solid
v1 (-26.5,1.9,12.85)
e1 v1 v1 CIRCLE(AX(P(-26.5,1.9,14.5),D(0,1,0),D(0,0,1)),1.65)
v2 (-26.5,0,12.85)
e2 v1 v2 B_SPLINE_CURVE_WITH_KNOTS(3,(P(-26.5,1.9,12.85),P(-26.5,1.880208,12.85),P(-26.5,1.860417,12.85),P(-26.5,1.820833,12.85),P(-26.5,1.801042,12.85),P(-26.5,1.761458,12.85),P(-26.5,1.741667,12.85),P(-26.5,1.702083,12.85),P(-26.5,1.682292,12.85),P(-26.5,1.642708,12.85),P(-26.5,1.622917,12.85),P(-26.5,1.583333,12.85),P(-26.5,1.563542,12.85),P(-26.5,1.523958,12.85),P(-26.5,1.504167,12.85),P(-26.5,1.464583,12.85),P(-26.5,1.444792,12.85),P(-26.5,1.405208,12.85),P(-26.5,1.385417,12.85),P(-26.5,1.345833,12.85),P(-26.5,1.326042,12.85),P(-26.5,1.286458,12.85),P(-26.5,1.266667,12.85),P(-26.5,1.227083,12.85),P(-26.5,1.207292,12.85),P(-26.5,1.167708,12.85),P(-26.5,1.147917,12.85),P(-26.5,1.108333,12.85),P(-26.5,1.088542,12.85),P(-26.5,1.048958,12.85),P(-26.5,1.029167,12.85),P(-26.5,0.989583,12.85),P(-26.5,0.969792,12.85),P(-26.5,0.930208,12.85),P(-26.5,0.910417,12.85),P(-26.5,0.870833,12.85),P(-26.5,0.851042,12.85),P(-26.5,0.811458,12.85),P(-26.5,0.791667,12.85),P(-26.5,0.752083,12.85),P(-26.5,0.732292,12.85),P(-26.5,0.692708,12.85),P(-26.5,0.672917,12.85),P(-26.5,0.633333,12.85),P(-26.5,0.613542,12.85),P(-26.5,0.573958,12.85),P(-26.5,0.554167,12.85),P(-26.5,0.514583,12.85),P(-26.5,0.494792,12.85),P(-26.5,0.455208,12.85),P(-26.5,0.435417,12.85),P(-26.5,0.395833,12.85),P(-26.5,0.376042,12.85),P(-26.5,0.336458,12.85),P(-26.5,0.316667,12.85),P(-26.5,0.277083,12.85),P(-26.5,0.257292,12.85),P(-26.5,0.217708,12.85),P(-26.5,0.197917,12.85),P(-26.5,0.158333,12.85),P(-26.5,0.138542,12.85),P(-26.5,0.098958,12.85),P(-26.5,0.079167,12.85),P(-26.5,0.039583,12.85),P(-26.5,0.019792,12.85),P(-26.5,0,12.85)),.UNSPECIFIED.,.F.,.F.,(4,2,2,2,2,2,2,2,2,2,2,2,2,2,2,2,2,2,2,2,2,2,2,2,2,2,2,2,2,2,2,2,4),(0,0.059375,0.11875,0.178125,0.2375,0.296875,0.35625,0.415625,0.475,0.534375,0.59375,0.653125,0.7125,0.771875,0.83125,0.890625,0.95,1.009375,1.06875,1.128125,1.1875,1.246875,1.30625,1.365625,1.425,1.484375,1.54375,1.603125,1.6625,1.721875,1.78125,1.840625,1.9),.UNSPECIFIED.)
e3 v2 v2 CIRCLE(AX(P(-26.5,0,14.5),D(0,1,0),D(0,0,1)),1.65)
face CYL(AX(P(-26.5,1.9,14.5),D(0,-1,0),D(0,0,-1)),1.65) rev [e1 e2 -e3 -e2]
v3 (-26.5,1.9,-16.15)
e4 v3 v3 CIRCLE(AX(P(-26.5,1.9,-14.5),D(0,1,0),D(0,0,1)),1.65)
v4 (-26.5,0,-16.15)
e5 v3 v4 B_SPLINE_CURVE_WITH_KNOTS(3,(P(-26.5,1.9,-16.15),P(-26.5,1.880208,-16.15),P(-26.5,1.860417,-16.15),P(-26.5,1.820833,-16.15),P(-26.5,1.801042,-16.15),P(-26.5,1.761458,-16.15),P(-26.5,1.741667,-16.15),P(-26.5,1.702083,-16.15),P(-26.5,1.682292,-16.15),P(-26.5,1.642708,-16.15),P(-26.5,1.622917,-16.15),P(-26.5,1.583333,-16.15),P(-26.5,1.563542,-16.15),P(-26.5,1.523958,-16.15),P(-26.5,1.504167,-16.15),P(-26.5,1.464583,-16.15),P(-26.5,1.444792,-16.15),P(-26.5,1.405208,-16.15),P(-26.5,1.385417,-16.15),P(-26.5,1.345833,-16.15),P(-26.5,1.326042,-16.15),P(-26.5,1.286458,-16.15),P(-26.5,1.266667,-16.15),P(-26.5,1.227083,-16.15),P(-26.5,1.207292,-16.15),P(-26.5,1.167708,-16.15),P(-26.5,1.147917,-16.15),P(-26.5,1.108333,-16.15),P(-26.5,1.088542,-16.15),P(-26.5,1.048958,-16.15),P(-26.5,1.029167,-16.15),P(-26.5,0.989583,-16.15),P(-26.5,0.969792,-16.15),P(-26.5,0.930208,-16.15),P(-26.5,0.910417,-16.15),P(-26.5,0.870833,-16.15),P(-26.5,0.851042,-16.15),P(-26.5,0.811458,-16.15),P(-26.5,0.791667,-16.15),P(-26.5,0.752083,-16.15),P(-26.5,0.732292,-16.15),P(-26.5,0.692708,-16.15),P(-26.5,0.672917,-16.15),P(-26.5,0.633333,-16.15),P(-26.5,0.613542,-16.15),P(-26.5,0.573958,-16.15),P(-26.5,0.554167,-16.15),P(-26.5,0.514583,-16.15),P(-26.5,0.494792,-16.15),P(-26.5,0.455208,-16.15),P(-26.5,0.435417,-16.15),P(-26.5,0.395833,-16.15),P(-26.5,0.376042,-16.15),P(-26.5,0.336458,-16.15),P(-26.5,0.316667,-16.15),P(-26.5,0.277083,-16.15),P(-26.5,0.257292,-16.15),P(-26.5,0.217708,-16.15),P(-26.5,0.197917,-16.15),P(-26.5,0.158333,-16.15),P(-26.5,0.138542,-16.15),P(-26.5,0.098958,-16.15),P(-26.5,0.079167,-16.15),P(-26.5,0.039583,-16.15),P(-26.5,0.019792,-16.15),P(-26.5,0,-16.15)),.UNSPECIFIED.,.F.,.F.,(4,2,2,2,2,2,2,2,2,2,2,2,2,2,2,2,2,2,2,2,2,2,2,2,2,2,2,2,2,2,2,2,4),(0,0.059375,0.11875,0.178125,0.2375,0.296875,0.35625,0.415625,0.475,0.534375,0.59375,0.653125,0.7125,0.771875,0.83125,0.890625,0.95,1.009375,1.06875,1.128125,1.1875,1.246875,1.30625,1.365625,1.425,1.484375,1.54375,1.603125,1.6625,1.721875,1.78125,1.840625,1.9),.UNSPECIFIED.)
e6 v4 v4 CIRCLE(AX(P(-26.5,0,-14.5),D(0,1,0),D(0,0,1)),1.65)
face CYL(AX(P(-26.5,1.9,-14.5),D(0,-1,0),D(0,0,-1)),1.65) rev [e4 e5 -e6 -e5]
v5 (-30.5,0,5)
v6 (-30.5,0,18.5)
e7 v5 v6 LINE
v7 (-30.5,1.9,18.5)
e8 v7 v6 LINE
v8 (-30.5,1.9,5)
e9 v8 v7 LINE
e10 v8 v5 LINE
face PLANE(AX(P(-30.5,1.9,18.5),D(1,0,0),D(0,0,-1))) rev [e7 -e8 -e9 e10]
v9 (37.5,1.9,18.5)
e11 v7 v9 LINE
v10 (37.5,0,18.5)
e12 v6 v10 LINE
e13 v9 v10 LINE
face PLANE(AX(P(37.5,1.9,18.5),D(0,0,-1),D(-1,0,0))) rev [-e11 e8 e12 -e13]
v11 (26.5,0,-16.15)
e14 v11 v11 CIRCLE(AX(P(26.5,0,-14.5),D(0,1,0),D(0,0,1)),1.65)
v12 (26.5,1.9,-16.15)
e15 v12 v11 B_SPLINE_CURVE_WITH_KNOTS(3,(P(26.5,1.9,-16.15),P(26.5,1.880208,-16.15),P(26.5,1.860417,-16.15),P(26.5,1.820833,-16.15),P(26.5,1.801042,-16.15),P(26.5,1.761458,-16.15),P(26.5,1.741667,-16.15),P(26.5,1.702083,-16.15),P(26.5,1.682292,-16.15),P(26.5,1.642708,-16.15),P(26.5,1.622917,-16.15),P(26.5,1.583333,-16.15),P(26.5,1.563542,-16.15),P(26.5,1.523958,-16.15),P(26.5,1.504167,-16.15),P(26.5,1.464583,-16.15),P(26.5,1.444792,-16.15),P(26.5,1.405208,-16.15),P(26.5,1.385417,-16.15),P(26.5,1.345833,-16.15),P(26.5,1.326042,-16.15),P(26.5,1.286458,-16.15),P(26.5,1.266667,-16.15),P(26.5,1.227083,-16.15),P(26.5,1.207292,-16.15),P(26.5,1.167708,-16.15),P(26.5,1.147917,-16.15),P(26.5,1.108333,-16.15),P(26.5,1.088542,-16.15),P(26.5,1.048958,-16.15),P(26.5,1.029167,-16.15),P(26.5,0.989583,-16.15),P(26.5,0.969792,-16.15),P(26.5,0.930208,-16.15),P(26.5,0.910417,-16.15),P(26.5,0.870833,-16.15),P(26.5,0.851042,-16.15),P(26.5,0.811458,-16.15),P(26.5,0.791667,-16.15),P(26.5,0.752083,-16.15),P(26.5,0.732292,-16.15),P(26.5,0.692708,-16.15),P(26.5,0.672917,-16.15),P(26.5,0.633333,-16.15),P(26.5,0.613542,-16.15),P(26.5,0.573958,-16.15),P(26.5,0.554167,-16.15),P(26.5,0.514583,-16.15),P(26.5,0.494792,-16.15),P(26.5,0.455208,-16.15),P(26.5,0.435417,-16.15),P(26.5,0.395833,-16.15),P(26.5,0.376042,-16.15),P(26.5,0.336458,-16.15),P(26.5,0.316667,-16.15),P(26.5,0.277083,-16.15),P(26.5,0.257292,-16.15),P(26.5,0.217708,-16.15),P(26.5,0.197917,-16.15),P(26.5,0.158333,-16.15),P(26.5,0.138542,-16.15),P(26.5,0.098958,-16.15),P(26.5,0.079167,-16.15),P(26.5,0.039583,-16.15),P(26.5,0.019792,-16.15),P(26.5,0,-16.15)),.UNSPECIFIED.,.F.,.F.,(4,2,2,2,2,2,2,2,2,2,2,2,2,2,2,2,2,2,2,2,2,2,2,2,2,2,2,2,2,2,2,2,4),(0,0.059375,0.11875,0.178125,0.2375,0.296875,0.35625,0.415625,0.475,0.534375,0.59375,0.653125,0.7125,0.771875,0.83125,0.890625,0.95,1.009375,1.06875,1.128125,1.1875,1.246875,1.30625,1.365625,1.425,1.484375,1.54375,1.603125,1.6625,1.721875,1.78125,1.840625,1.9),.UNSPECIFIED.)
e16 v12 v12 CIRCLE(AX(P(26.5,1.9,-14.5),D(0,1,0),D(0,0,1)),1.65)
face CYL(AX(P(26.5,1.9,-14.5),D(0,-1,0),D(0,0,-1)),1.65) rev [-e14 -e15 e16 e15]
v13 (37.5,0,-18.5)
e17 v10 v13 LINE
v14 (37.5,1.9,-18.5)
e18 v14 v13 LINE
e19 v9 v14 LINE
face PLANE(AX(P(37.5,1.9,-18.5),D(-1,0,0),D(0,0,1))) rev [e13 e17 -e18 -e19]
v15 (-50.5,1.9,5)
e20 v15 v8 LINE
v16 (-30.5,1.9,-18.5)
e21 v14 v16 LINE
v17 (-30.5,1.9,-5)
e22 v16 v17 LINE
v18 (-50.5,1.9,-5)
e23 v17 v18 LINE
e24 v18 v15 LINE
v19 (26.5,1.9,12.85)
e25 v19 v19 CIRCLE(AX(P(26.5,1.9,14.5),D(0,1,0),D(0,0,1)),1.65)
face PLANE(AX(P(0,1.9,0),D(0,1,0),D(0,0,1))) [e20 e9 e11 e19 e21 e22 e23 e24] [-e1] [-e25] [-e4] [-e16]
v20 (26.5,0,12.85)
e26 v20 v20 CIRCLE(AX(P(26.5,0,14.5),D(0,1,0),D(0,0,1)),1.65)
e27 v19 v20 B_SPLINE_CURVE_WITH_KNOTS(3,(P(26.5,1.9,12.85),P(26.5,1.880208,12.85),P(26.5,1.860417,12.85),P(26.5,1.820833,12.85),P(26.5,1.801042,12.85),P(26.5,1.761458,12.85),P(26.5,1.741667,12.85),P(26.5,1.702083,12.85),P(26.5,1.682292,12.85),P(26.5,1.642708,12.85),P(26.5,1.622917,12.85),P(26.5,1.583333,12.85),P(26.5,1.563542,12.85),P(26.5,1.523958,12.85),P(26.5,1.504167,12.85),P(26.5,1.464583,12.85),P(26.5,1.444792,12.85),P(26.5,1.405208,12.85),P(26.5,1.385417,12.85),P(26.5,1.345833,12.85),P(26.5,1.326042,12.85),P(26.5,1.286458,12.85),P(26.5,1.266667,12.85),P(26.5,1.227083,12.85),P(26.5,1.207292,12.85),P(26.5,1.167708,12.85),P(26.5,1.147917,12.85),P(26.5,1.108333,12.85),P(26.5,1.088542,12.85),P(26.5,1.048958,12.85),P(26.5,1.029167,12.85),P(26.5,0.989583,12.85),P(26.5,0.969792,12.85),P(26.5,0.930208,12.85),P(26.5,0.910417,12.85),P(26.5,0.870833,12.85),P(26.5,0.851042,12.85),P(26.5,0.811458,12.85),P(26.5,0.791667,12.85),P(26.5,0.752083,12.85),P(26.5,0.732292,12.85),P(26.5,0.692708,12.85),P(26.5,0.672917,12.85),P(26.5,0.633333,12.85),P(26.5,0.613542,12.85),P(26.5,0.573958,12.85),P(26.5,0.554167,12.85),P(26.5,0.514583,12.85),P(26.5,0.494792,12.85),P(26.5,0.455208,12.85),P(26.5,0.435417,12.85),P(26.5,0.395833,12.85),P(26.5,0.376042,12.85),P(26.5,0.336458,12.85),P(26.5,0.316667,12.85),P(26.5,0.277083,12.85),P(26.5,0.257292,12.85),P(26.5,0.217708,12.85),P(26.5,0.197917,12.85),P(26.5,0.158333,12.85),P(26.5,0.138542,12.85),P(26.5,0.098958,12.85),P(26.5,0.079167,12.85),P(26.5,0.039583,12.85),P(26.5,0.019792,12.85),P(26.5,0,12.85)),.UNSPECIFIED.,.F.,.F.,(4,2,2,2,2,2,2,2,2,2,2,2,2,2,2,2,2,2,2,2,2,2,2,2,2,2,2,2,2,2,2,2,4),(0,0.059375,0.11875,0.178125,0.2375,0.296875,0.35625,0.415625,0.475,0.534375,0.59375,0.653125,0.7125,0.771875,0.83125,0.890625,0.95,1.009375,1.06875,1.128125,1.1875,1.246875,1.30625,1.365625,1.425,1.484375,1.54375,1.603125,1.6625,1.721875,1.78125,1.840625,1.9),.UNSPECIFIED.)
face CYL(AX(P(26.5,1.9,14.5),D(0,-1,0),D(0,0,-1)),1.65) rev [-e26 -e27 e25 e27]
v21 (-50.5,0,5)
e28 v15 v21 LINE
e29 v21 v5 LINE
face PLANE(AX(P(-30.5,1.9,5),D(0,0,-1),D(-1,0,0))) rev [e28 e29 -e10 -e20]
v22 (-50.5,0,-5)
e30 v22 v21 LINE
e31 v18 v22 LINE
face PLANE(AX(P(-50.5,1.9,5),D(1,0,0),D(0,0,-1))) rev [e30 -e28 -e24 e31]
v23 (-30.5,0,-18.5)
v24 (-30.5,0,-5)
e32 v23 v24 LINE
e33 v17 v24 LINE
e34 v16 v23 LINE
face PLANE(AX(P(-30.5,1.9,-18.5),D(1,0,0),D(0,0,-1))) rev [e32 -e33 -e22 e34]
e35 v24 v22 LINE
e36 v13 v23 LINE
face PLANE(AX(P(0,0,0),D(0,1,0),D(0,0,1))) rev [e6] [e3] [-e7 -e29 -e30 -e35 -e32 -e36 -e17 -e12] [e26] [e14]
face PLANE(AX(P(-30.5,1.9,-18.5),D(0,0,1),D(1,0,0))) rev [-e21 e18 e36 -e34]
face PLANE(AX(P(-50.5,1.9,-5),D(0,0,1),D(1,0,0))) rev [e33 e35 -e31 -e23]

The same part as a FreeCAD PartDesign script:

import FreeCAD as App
import Part
import Sketcher
Q = App.Units.Quantity

doc = App.newDocument("Part")
body = doc.addObject("PartDesign::Body", "Body")

# Sketch on XZ plane
sketch1 = body.newObject("Sketcher::SketchObject", "Sketch")
sketch1.AttachmentSupport = (doc.getObject("XZ_Plane"), [""])
sketch1.MapMode = "FlatFace"
sketch1.addGeometry(Part.LineSegment(App.Vector(37.5, -18.5, 0), App.Vector(-30.5, -18.5, 0)), False)
sketch1.addGeometry(Part.LineSegment(App.Vector(-30.5, -18.5, 0), App.Vector(-30.5, -5, 0)), False)
sketch1.addGeometry(Part.LineSegment(App.Vector(-30.5, -5, 0), App.Vector(-50.5, -5, 0)), False)
sketch1.addGeometry(Part.LineSegment(App.Vector(-50.5, -5, 0), App.Vector(-50.5, 5, 0)), False)
sketch1.addGeometry(Part.LineSegment(App.Vector(-50.5, 5, 0), App.Vector(-30.5, 5, 0)), False)
sketch1.addGeometry(Part.LineSegment(App.Vector(-30.5, 5, 0), App.Vector(-30.5, 18.5, 0)), False)
sketch1.addGeometry(Part.LineSegment(App.Vector(-30.5, 18.5, 0), App.Vector(37.5, 18.5, 0)), False)
sketch1.addGeometry(Part.LineSegment(App.Vector(37.5, 18.5, 0), App.Vector(37.5, -18.5, 0)), False)
sketch1.addGeometry(Part.Circle(App.Vector(26.5, 14.5, 0), App.Vector(0, 0, 1), 1.6), False)
sketch1.addGeometry(Part.Circle(App.Vector(-26.5, 14.5, 0), App.Vector(0, 0, 1), 1.6), False)
sketch1.addGeometry(Part.Circle(App.Vector(26.5, -14.5, 0), App.Vector(0, 0, 1), 1.6), False)
sketch1.addGeometry(Part.Circle(App.Vector(-26.5, -14.5, 0), App.Vector(0, 0, 1), 1.6), False)
sketch1.addConstraint(Sketcher.Constraint("Coincident", 0, 2, 1, 1))
sketch1.addConstraint(Sketcher.Constraint("Coincident", 1, 2, 2, 1))
sketch1.addConstraint(Sketcher.Constraint("Coincident", 2, 2, 3, 1))
sketch1.addConstraint(Sketcher.Constraint("Coincident", 3, 2, 4, 1))
sketch1.addConstraint(Sketcher.Constraint("Coincident", 4, 2, 5, 1))
sketch1.addConstraint(Sketcher.Constraint("Coincident", 5, 2, 6, 1))
sketch1.addConstraint(Sketcher.Constraint("Coincident", 6, 2, 7, 1))
sketch1.addConstraint(Sketcher.Constraint("Coincident", 7, 2, 0, 1))
sketch1.addConstraint(Sketcher.Constraint("Horizontal", 0))
sketch1.addConstraint(Sketcher.Constraint("Vertical", 1))
sketch1.addConstraint(Sketcher.Constraint("Horizontal", 2))
sketch1.addConstraint(Sketcher.Constraint("Vertical", 3))
sketch1.addConstraint(Sketcher.Constraint("Horizontal", 4))
sketch1.addConstraint(Sketcher.Constraint("Vertical", 5))
sketch1.addConstraint(Sketcher.Constraint("Horizontal", 6))
sketch1.addConstraint(Sketcher.Constraint("Vertical", 7))
sketch1.addConstraint(Sketcher.Constraint("Equal", 8, 9))
sketch1.addConstraint(Sketcher.Constraint("Equal", 9, 10))
sketch1.addConstraint(Sketcher.Constraint("Equal", 10, 11))
sketch1.addConstraint(Sketcher.Constraint("Symmetric", 9, 3, 10, 3, -1, 1))
sketch1.addConstraint(Sketcher.Constraint("Symmetric", 8, 3, 11, 3, -1, 1))
sketch1.addConstraint(Sketcher.Constraint("Symmetric", 8, 3, 9, 3, -2))
sketch1.addConstraint(Sketcher.Constraint("Symmetric", 1, 2, 4, 2, -1))
sketch1.addConstraint(Sketcher.Constraint("Equal", 1, 5))
sketch1.addConstraint(Sketcher.Constraint("Diameter", 8, Q("3.3 mm")))
sketch1.addConstraint(Sketcher.Constraint("DistanceX", 0, 2, 0, 1, Q("68 mm")))
sketch1.addConstraint(Sketcher.Constraint("DistanceX", 2, 2, 2, 1, Q("20 mm")))
sketch1.addConstraint(Sketcher.Constraint("DistanceY", 3, 1, 3, 2, Q("10 mm")))
sketch1.addConstraint(Sketcher.Constraint("DistanceY", 7, 2, 7, 1, Q("37 mm")))
sketch1.addConstraint(Sketcher.Constraint("DistanceX", 9, 3, 8, 3, Q("53 mm")))
sketch1.addConstraint(Sketcher.Constraint("DistanceY", 10, 3, 8, 3, Q("29 mm")))
sketch1.addConstraint(Sketcher.Constraint("DistanceX", 0, 2, 11, 3, Q("4 mm")))
pad1 = body.newObject("PartDesign::Pad", "Pad")
pad1.Profile = sketch1
pad1.Length = 1.9
pad1.Reversed = True

doc.recompute()
